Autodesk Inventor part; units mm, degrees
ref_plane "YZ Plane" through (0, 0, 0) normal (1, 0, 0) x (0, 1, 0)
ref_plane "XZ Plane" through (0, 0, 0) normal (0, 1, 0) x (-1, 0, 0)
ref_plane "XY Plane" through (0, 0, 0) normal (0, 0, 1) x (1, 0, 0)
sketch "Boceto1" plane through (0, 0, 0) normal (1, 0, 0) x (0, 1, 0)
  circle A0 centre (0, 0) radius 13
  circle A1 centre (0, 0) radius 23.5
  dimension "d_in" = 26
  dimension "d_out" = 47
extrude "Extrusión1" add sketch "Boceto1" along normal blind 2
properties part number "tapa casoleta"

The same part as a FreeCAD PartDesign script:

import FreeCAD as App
import Part
import Sketcher

doc = App.newDocument("Part")
body = doc.addObject("PartDesign::Body", "Body")

sketch1 = body.newObject("Sketcher::SketchObject", "Sketch")
sketch1.AttachmentSupport = (doc.getObject("YZ_Plane"), [""])
sketch1.MapMode = "FlatFace"
sketch1.addGeometry(Part.Circle(App.Vector(0, 0, 0), App.Vector(0, 0, 1), 24), False)
sketch1.addGeometry(Part.Circle(App.Vector(0, 0, 0), App.Vector(0, 0, 1), 13), False)
sketch1.addConstraint(Sketcher.Constraint("Coincident", 0, 3, -1, 1))
sketch1.addConstraint(Sketcher.Constraint("Coincident", 1, 3, -1, 1))
sketch1.addConstraint(Sketcher.Constraint("Diameter", 0, 47.0))
sketch1.addConstraint(Sketcher.Constraint("Diameter", 1, 26.0))
pad1 = body.newObject("PartDesign::Pad", "Pad")
pad1.Profile = sketch1
pad1.Length = 2

doc.recompute()
